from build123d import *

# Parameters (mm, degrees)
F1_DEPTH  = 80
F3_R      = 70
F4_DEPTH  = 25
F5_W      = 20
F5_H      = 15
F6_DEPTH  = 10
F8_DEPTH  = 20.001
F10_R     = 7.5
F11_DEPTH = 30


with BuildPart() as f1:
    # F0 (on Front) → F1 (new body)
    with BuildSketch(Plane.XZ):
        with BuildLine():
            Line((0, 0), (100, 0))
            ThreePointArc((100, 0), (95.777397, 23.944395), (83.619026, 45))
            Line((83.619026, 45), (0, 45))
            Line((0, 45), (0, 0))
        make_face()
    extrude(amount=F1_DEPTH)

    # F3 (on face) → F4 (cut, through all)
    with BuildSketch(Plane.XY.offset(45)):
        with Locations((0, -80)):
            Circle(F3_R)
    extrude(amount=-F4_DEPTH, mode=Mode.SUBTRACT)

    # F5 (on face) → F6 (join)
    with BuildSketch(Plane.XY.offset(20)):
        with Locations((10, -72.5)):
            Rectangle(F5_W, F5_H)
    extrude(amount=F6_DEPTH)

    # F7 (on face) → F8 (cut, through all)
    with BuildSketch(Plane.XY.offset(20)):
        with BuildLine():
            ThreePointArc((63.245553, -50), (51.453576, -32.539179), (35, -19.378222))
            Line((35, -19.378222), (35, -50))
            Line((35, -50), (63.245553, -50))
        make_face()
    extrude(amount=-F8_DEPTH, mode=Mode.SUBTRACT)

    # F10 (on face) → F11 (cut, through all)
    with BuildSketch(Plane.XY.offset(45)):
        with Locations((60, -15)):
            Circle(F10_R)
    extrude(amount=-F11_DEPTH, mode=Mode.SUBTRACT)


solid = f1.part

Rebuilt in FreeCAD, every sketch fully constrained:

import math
import FreeCAD as App
import Part
import Sketcher
from FreeCAD import Vector

doc = App.newDocument("Part")
body = doc.addObject("PartDesign::Body", "Body")

sketch1 = doc.addObject("Sketcher::SketchObject", "Sketch")
body.addObject(sketch1)
sketch1.AttachmentSupport = (doc.XZ_Plane, [""])
sketch1.MapMode = "FlatFace"
sketch1.addGeometry(Part.LineSegment(Vector(0, 0, 0), Vector(100, 0, 0)), False)
sketch1.addGeometry(Part.ArcOfCircle(Part.Circle(Vector(30.000004, 0.000001, 0), Vector(0, 0, 1), 69.999996), math.radians(-0.000001), math.radians(40.005203)), False)
sketch1.addGeometry(Part.LineSegment(Vector(83.619026, 45, 0), Vector(0, 45, 0)), False)
sketch1.addGeometry(Part.LineSegment(Vector(0, 45, 0), Vector(0, 0, 0)), False)
sketch1.addConstraint(Sketcher.Constraint("Coincident", 0, 2, 1, 1))
sketch1.addConstraint(Sketcher.Constraint("Coincident", 1, 2, 2, 1))
sketch1.addConstraint(Sketcher.Constraint("Coincident", 2, 2, 3, 1))
sketch1.addConstraint(Sketcher.Constraint("Coincident", 3, 2, 0, 1))
sketch1.addConstraint(Sketcher.Constraint("Horizontal", 0))
sketch1.addConstraint(Sketcher.Constraint("Horizontal", 2))
sketch1.addConstraint(Sketcher.Constraint("Vertical", 3))
sketch1.addConstraint(Sketcher.Constraint("Coincident", 3, 2, -1, 1))
sketch1.addConstraint(Sketcher.Constraint("PointOnObject", 1, 3, -1))
sketch1.addConstraint(Sketcher.Constraint("DistanceX", 0, 1, 0, 2, 100.0))
sketch1.addConstraint(Sketcher.Constraint("DistanceY", 3, 2, 3, 1, 45.0))
sketch1.addConstraint(Sketcher.Constraint("Radius", 1, 69.999996))
pad1 = doc.addObject("PartDesign::Pad", "Pad")
body.addObject(pad1)
pad1.Profile = sketch1
pad1.Length = 80

sketch2 = doc.addObject("Sketcher::SketchObject", "Sketch001")
body.addObject(sketch2)
sketch2.AttachmentSupport = (doc.XY_Plane, [""])
sketch2.MapMode = "FlatFace"
sketch2.AttachmentOffset = App.Placement(Vector(0, 0, 45), App.Rotation())
sketch2.addGeometry(Part.Circle(Vector(0, -80, 0), Vector(0, 0, 1), 70), False)
sketch2.addConstraint(Sketcher.Constraint("PointOnObject", 0, 3, -2))
sketch2.addConstraint(Sketcher.Constraint("Diameter", 0, 140.0))
sketch2.addConstraint(Sketcher.Constraint("DistanceY", 0, 3, -1, 1, 80.0))
pocket1 = doc.addObject("PartDesign::Pocket", "Pocket")
body.addObject(pocket1)
pocket1.Profile = sketch2
pocket1.Length = 25

sketch3 = doc.addObject("Sketcher::SketchObject", "Sketch002")
body.addObject(sketch3)
sketch3.AttachmentSupport = (doc.XY_Plane, [""])
sketch3.MapMode = "FlatFace"
sketch3.AttachmentOffset = App.Placement(Vector(0, 0, 20), App.Rotation())
sketch3.addGeometry(Part.LineSegment(Vector(0, -65, 0), Vector(0, -80, 0)), False)
sketch3.addGeometry(Part.LineSegment(Vector(0, -80, 0), Vector(20, -80, 0)), False)
sketch3.addGeometry(Part.LineSegment(Vector(20, -80, 0), Vector(20, -65, 0)), False)
sketch3.addGeometry(Part.LineSegment(Vector(20, -65, 0), Vector(0, -65, 0)), False)
sketch3.addConstraint(Sketcher.Constraint("Coincident", 0, 2, 1, 1))
sketch3.addConstraint(Sketcher.Constraint("Coincident", 1, 2, 2, 1))
sketch3.addConstraint(Sketcher.Constraint("Coincident", 2, 2, 3, 1))
sketch3.addConstraint(Sketcher.Constraint("Coincident", 3, 2, 0, 1))
sketch3.addConstraint(Sketcher.Constraint("Vertical", 0))
sketch3.addConstraint(Sketcher.Constraint("Horizontal", 1))
sketch3.addConstraint(Sketcher.Constraint("Vertical", 2))
sketch3.addConstraint(Sketcher.Constraint("Horizontal", 3))
sketch3.addConstraint(Sketcher.Constraint("PointOnObject", 0, 2, -2))
sketch3.addConstraint(Sketcher.Constraint("DistanceX", 1, 1, 1, 2, 20.0))
sketch3.addConstraint(Sketcher.Constraint("DistanceY", 0, 2, 0, 1, 15.0))
sketch3.addConstraint(Sketcher.Constraint("DistanceY", 0, 2, -1, 1, 80.0))
pad2 = doc.addObject("PartDesign::Pad", "Pad001")
body.addObject(pad2)
pad2.Profile = sketch3
pad2.Length = 10

sketch4 = doc.addObject("Sketcher::SketchObject", "Sketch003")
body.addObject(sketch4)
sketch4.AttachmentSupport = (doc.XY_Plane, [""])
sketch4.MapMode = "FlatFace"
sketch4.AttachmentOffset = App.Placement(Vector(0, 0, 20), App.Rotation())
sketch4.addGeometry(Part.ArcOfCircle(Part.Circle(Vector(0.000005, -79.999996, 0), Vector(0, 0, 1), 69.999993), math.radians(25.376932), math.radians(60.000002)), False)
sketch4.addGeometry(Part.LineSegment(Vector(35, -19.378222, 0), Vector(35, -50, 0)), False)
sketch4.addGeometry(Part.LineSegment(Vector(35, -50, 0), Vector(63.245553, -50, 0)), False)
sketch4.addConstraint(Sketcher.Constraint("Coincident", 0, 2, 1, 1))
sketch4.addConstraint(Sketcher.Constraint("Coincident", 1, 2, 2, 1))
sketch4.addConstraint(Sketcher.Constraint("Coincident", 2, 2, 0, 1))
sketch4.addConstraint(Sketcher.Constraint("Vertical", 1))
sketch4.addConstraint(Sketcher.Constraint("Horizontal", 2))
sketch4.addConstraint(Sketcher.Constraint("DistanceX", -1, 1, 0, 2, 35.0))
sketch4.addConstraint(Sketcher.Constraint("DistanceY", 1, 2, -1, 1, 50.0))
sketch4.addConstraint(Sketcher.Constraint("Radius", 0, 69.999993))
sketch4.addConstraint(Sketcher.Constraint("DistanceX", 2, 1, 2, 2, 28.245553))
sketch4.addConstraint(Sketcher.Constraint("DistanceY", 1, 2, 1, 1, 30.621778))
pocket2 = doc.addObject("PartDesign::Pocket", "Pocket001")
body.addObject(pocket2)
pocket2.Profile = sketch4
pocket2.Type = "ThroughAll"

sketch5 = doc.addObject("Sketcher::SketchObject", "Sketch004")
body.addObject(sketch5)
sketch5.AttachmentSupport = (doc.XY_Plane, [""])
sketch5.MapMode = "FlatFace"
sketch5.AttachmentOffset = App.Placement(Vector(0, 0, 45), App.Rotation())
sketch5.addGeometry(Part.Circle(Vector(60, -15, 0), Vector(0, 0, 1), 7.5), False)
sketch5.addConstraint(Sketcher.Constraint("Diameter", 0, 15.0))
sketch5.addConstraint(Sketcher.Constraint("DistanceX", -1, 1, 0, 3, 60.0))
sketch5.addConstraint(Sketcher.Constraint("DistanceY", 0, 3, -1, 1, 15.0))
pocket3 = doc.addObject("PartDesign::Pocket", "Pocket002")
body.addObject(pocket3)
pocket3.Profile = sketch5
pocket3.Length = 30

doc.recompute()
